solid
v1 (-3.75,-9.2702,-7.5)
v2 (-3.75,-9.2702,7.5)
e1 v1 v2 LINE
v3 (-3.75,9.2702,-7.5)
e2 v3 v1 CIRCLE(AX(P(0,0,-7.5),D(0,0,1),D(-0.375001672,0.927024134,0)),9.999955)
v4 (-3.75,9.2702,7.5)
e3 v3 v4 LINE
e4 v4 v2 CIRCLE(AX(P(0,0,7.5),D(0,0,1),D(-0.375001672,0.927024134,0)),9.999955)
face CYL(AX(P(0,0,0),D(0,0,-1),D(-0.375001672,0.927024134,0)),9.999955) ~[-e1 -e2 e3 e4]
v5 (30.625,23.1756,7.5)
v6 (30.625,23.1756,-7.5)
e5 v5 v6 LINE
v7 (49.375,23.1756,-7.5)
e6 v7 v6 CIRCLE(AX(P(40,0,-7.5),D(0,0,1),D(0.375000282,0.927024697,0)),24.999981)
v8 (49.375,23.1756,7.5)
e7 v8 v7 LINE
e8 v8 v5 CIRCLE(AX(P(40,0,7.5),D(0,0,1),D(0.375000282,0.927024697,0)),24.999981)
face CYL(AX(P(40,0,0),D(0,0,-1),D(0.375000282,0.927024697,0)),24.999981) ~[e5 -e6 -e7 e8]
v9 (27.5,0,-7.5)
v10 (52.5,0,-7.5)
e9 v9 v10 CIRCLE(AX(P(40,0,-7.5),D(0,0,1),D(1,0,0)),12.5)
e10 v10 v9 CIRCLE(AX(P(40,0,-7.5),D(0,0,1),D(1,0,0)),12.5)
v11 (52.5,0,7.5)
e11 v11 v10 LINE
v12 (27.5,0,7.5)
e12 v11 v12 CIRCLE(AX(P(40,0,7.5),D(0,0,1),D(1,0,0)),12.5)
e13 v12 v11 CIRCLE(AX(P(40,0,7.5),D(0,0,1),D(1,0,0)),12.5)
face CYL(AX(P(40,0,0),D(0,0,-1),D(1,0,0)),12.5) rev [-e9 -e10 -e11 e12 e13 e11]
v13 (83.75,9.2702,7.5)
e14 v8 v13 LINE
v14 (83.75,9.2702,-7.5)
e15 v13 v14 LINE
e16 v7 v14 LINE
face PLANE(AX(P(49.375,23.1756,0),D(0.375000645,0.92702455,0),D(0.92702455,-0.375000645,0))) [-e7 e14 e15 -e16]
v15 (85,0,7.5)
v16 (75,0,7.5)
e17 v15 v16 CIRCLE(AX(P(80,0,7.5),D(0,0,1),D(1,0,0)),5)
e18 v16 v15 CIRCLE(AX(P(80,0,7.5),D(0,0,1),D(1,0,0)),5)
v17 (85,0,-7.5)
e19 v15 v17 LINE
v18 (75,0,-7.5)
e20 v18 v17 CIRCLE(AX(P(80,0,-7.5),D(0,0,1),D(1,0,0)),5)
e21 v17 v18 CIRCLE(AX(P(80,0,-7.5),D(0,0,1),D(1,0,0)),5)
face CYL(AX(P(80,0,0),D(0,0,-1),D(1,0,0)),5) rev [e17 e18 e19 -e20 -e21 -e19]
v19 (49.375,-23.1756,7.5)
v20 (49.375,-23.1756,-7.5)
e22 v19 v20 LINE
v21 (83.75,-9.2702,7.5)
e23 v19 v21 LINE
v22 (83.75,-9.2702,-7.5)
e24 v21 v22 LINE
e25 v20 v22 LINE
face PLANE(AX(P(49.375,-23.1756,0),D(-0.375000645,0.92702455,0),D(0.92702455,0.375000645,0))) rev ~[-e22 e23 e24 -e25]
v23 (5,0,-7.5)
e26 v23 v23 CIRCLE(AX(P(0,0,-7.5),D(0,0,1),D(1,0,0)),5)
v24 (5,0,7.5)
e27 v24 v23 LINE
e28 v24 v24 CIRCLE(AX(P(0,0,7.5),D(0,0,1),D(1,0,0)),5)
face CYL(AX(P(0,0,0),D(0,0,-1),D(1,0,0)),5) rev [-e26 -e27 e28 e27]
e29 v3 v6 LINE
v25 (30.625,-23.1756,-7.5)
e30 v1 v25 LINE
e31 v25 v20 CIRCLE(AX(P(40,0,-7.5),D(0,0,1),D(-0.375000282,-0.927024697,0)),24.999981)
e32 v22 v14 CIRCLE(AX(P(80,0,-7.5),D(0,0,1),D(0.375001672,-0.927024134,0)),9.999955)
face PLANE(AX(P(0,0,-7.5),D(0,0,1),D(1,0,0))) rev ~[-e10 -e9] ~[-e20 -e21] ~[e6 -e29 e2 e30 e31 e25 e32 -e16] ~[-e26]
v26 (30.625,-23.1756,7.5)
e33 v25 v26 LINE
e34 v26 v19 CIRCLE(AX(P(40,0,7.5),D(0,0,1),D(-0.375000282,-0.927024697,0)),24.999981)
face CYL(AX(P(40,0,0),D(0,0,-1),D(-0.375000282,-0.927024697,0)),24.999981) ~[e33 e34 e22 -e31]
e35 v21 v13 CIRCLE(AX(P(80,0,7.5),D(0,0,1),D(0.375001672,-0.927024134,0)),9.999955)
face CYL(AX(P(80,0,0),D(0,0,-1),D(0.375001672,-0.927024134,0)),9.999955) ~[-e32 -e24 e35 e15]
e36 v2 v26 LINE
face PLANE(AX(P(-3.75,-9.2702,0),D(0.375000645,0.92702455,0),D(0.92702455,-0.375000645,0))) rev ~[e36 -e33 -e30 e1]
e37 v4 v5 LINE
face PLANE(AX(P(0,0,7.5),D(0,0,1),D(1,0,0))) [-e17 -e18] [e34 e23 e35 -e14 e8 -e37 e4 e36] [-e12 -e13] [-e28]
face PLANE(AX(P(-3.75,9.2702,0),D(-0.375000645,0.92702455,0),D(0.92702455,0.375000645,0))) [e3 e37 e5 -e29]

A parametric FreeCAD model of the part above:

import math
import FreeCAD as App
import Part
import Sketcher
from FreeCAD import Vector
Q = App.Units.Quantity

doc = App.newDocument("Part")
params = doc.addObject("Spreadsheet::Sheet", "Params")
for row, (alias, value) in enumerate([
    ("sketch1_diameter", "10 mm"),
    ("sketch1_radius", "10 mm"),
    ("sketch1_radius2", "25 mm"),
    ("sketch1_radius3", "12.5 mm"),
    ("pad1_length", "15 mm"),
], start=1):
    params.set(f"A{row}", alias)
    params.set(f"B{row}", "=" + value)
    params.setAlias(f"B{row}", alias)

body = doc.addObject("PartDesign::Body", "Body")

# Sketch on XY plane
sketch1 = doc.addObject("Sketcher::SketchObject", "Sketch")
body.addObject(sketch1)
sketch1.AttachmentSupport = (doc.XY_Plane, [""])
sketch1.MapMode = "FlatFace"
sketch1.addGeometry(Part.LineSegment(Vector(31, 23, 0), Vector(-4, 9, 0)), False)
sketch1.addGeometry(Part.ArcOfCircle(Part.Circle(Vector(0, 0, 0), Vector(0, 0, 1), 10), math.radians(112), math.radians(248)), False)
sketch1.addGeometry(Part.LineSegment(Vector(-4, -9, 0), Vector(31, -23, 0)), False)
sketch1.addGeometry(Part.ArcOfCircle(Part.Circle(Vector(40, 0, 0), Vector(0, 0, 1), 25), math.radians(-112), math.radians(-68)), False)
sketch1.addGeometry(Part.LineSegment(Vector(49, -23, 0), Vector(84, -9, 0)), False)
sketch1.addGeometry(Part.ArcOfCircle(Part.Circle(Vector(80, 0, 0), Vector(0, 0, 1), 10), math.radians(-68), math.radians(68)), False)
sketch1.addGeometry(Part.LineSegment(Vector(84, 9, 0), Vector(49, 23, 0)), False)
sketch1.addGeometry(Part.ArcOfCircle(Part.Circle(Vector(40, 0, 0), Vector(0, 0, 1), 25), math.radians(68), math.radians(112)), False)
sketch1.addGeometry(Part.Circle(Vector(0, 0, 0), Vector(0, 0, 1), 5), False)
sketch1.addGeometry(Part.ArcOfCircle(Part.Circle(Vector(40, 0, 0), Vector(0, 0, 1), 12), math.radians(180), math.radians(360)), False)
sketch1.addGeometry(Part.ArcOfCircle(Part.Circle(Vector(40, 0, 0), Vector(0, 0, 1), 12), math.radians(0), math.radians(180)), False)
sketch1.addGeometry(Part.Circle(Vector(80, 0, 0), Vector(0, 0, 1), 5), False)
sketch1.addConstraint(Sketcher.Constraint("Tangent", 0, 2, 1, 1))
sketch1.addConstraint(Sketcher.Constraint("Tangent", 1, 2, 2, 1))
sketch1.addConstraint(Sketcher.Constraint("Tangent", 2, 2, 3, 1))
sketch1.addConstraint(Sketcher.Constraint("Tangent", 3, 2, 4, 1))
sketch1.addConstraint(Sketcher.Constraint("Tangent", 4, 2, 5, 1))
sketch1.addConstraint(Sketcher.Constraint("Tangent", 5, 2, 6, 1))
sketch1.addConstraint(Sketcher.Constraint("Tangent", 6, 2, 7, 1))
sketch1.addConstraint(Sketcher.Constraint("Tangent", 7, 2, 0, 1))
sketch1.addConstraint(Sketcher.Constraint("Tangent", 9, 1, 10, 2))
sketch1.addConstraint(Sketcher.Constraint("Coincident", 10, 1, 9, 2))
sketch1.addConstraint(Sketcher.Constraint("Coincident", 1, 3, -1, 1))
sketch1.addConstraint(Sketcher.Constraint("Coincident", 8, 3, -1, 1))
sketch1.addConstraint(Sketcher.Constraint("Coincident", 7, 3, 3, 3))
sketch1.addConstraint(Sketcher.Constraint("Coincident", 9, 3, 3, 3))
sketch1.addConstraint(Sketcher.Constraint("Coincident", 11, 3, 5, 3))
sketch1.addConstraint(Sketcher.Constraint("Equal", 1, 5))
sketch1.addConstraint(Sketcher.Constraint("Equal", 3, 7))
sketch1.addConstraint(Sketcher.Constraint("Equal", 8, 11))
sketch1.addConstraint(Sketcher.Constraint("Symmetric", 4, 2, 5, 2, -1))
sketch1.addConstraint(Sketcher.Constraint("PointOnObject", 9, 1, -1))
sketch1.addConstraint(Sketcher.Constraint("PointOnObject", 10, 1, -1))
sketch1.addConstraint(Sketcher.Constraint("Parallel", 0, 4))
sketch1.addConstraint(Sketcher.Constraint("Diameter", 8, Q("10 mm")))
sketch1.addConstraint(Sketcher.Constraint("Radius", 1, Q("10 mm")))
sketch1.addConstraint(Sketcher.Constraint("Radius", 3, Q("25 mm")))
sketch1.addConstraint(Sketcher.Constraint("Radius", 9, Q("12.5 mm")))
sketch1.addConstraint(Sketcher.Constraint("DistanceX", -1, 1, 3, 3, Q("40 mm")))
sketch1.setExpression("Constraints[22]", "Params.sketch1_diameter")
sketch1.setExpression("Constraints[23]", "Params.sketch1_radius")
sketch1.setExpression("Constraints[24]", "Params.sketch1_radius2")
sketch1.setExpression("Constraints[25]", "Params.sketch1_radius3")
pad1 = doc.addObject("PartDesign::Pad", "Pad")
body.addObject(pad1)
pad1.Profile = sketch1
pad1.setExpression("Length", "Params.pad1_length")
pad1.Midplane = True

doc.recompute()
